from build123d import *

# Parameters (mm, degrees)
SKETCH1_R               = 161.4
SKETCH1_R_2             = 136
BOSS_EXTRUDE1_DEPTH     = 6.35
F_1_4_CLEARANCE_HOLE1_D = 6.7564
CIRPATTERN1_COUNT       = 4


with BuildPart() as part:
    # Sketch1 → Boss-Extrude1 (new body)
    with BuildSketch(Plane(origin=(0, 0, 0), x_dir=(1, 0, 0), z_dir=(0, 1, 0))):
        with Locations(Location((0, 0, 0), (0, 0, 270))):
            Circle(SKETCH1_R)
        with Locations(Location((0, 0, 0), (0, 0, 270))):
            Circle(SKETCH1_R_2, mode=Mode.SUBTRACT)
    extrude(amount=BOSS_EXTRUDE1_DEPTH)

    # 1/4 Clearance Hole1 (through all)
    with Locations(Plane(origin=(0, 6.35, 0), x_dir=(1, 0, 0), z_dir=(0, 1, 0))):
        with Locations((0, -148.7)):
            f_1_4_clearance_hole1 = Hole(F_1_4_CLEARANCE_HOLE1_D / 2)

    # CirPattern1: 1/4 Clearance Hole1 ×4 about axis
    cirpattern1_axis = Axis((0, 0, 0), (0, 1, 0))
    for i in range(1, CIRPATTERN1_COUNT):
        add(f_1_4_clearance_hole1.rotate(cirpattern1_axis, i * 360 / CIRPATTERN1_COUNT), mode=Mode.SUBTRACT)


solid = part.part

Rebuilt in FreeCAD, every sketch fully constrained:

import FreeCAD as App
import Part
import Sketcher
from FreeCAD import Vector

doc = App.newDocument("Part")
body = doc.addObject("PartDesign::Body", "Body")

# Sketch on XZ plane
sketch1 = body.newObject("Sketcher::SketchObject", "Sketch")
sketch1.AttachmentSupport = (doc.getObject("XZ_Plane"), [""])
sketch1.MapMode = "FlatFace"
sketch1.addGeometry([
    Part.Circle(Vector(0, 0, 0), Vector(0, 0, 1), 161),
    Part.Circle(Vector(0, 0, 0), Vector(0, 0, 1), 136),
], False)
sketch1.addConstraint([
    Sketcher.Constraint("Coincident", 0, 3, -1, 1),
    Sketcher.Constraint("Coincident", 1, 3, -1, 1),
    Sketcher.Constraint("Diameter", 1, 272.0),
    Sketcher.Constraint("Diameter", 0, 322.8),
])
pad1 = body.newObject("PartDesign::Pad", "Pad")
pad1.Profile = sketch1
pad1.Length = 6.35
pad1.Reversed = True

# Sketch on XZ plane
sketch2 = body.newObject("Sketcher::SketchObject", "Sketch001")
sketch2.AttachmentSupport = (doc.getObject("XZ_Plane"), [""])
sketch2.MapMode = "FlatFace"
sketch2.AttachmentOffset = App.Placement(Vector(0, 0, -6.35), App.Rotation())
sketch2.addGeometry(Part.Circle(Vector(0, 148.7, 0), Vector(0, 0, 1), 3.4), False)
sketch2.addConstraint([
    Sketcher.Constraint("PointOnObject", 0, 3, -2),
    Sketcher.Constraint("Diameter", 0, 6.7564),
    Sketcher.Constraint("DistanceY", -1, 1, 0, 3, 148.7),
])
doc.recompute()
hole = body.newObject("PartDesign::Hole", "Hole")
hole.Profile = sketch2
hole.ThreadType = "None"
hole.Diameter = 6.7564
hole.DepthType = "ThroughAll"
hole.Reversed = True
doc.recompute()

polarpattern = body.newObject("PartDesign::PolarPattern", "PolarPattern")
polarpattern.Originals = [hole]
polarpattern.Axis = (doc.getObject("Y_Axis"), [""])
polarpattern.Angle = 360
polarpattern.Occurrences = 4
body.Tip = polarpattern

doc.recompute()
